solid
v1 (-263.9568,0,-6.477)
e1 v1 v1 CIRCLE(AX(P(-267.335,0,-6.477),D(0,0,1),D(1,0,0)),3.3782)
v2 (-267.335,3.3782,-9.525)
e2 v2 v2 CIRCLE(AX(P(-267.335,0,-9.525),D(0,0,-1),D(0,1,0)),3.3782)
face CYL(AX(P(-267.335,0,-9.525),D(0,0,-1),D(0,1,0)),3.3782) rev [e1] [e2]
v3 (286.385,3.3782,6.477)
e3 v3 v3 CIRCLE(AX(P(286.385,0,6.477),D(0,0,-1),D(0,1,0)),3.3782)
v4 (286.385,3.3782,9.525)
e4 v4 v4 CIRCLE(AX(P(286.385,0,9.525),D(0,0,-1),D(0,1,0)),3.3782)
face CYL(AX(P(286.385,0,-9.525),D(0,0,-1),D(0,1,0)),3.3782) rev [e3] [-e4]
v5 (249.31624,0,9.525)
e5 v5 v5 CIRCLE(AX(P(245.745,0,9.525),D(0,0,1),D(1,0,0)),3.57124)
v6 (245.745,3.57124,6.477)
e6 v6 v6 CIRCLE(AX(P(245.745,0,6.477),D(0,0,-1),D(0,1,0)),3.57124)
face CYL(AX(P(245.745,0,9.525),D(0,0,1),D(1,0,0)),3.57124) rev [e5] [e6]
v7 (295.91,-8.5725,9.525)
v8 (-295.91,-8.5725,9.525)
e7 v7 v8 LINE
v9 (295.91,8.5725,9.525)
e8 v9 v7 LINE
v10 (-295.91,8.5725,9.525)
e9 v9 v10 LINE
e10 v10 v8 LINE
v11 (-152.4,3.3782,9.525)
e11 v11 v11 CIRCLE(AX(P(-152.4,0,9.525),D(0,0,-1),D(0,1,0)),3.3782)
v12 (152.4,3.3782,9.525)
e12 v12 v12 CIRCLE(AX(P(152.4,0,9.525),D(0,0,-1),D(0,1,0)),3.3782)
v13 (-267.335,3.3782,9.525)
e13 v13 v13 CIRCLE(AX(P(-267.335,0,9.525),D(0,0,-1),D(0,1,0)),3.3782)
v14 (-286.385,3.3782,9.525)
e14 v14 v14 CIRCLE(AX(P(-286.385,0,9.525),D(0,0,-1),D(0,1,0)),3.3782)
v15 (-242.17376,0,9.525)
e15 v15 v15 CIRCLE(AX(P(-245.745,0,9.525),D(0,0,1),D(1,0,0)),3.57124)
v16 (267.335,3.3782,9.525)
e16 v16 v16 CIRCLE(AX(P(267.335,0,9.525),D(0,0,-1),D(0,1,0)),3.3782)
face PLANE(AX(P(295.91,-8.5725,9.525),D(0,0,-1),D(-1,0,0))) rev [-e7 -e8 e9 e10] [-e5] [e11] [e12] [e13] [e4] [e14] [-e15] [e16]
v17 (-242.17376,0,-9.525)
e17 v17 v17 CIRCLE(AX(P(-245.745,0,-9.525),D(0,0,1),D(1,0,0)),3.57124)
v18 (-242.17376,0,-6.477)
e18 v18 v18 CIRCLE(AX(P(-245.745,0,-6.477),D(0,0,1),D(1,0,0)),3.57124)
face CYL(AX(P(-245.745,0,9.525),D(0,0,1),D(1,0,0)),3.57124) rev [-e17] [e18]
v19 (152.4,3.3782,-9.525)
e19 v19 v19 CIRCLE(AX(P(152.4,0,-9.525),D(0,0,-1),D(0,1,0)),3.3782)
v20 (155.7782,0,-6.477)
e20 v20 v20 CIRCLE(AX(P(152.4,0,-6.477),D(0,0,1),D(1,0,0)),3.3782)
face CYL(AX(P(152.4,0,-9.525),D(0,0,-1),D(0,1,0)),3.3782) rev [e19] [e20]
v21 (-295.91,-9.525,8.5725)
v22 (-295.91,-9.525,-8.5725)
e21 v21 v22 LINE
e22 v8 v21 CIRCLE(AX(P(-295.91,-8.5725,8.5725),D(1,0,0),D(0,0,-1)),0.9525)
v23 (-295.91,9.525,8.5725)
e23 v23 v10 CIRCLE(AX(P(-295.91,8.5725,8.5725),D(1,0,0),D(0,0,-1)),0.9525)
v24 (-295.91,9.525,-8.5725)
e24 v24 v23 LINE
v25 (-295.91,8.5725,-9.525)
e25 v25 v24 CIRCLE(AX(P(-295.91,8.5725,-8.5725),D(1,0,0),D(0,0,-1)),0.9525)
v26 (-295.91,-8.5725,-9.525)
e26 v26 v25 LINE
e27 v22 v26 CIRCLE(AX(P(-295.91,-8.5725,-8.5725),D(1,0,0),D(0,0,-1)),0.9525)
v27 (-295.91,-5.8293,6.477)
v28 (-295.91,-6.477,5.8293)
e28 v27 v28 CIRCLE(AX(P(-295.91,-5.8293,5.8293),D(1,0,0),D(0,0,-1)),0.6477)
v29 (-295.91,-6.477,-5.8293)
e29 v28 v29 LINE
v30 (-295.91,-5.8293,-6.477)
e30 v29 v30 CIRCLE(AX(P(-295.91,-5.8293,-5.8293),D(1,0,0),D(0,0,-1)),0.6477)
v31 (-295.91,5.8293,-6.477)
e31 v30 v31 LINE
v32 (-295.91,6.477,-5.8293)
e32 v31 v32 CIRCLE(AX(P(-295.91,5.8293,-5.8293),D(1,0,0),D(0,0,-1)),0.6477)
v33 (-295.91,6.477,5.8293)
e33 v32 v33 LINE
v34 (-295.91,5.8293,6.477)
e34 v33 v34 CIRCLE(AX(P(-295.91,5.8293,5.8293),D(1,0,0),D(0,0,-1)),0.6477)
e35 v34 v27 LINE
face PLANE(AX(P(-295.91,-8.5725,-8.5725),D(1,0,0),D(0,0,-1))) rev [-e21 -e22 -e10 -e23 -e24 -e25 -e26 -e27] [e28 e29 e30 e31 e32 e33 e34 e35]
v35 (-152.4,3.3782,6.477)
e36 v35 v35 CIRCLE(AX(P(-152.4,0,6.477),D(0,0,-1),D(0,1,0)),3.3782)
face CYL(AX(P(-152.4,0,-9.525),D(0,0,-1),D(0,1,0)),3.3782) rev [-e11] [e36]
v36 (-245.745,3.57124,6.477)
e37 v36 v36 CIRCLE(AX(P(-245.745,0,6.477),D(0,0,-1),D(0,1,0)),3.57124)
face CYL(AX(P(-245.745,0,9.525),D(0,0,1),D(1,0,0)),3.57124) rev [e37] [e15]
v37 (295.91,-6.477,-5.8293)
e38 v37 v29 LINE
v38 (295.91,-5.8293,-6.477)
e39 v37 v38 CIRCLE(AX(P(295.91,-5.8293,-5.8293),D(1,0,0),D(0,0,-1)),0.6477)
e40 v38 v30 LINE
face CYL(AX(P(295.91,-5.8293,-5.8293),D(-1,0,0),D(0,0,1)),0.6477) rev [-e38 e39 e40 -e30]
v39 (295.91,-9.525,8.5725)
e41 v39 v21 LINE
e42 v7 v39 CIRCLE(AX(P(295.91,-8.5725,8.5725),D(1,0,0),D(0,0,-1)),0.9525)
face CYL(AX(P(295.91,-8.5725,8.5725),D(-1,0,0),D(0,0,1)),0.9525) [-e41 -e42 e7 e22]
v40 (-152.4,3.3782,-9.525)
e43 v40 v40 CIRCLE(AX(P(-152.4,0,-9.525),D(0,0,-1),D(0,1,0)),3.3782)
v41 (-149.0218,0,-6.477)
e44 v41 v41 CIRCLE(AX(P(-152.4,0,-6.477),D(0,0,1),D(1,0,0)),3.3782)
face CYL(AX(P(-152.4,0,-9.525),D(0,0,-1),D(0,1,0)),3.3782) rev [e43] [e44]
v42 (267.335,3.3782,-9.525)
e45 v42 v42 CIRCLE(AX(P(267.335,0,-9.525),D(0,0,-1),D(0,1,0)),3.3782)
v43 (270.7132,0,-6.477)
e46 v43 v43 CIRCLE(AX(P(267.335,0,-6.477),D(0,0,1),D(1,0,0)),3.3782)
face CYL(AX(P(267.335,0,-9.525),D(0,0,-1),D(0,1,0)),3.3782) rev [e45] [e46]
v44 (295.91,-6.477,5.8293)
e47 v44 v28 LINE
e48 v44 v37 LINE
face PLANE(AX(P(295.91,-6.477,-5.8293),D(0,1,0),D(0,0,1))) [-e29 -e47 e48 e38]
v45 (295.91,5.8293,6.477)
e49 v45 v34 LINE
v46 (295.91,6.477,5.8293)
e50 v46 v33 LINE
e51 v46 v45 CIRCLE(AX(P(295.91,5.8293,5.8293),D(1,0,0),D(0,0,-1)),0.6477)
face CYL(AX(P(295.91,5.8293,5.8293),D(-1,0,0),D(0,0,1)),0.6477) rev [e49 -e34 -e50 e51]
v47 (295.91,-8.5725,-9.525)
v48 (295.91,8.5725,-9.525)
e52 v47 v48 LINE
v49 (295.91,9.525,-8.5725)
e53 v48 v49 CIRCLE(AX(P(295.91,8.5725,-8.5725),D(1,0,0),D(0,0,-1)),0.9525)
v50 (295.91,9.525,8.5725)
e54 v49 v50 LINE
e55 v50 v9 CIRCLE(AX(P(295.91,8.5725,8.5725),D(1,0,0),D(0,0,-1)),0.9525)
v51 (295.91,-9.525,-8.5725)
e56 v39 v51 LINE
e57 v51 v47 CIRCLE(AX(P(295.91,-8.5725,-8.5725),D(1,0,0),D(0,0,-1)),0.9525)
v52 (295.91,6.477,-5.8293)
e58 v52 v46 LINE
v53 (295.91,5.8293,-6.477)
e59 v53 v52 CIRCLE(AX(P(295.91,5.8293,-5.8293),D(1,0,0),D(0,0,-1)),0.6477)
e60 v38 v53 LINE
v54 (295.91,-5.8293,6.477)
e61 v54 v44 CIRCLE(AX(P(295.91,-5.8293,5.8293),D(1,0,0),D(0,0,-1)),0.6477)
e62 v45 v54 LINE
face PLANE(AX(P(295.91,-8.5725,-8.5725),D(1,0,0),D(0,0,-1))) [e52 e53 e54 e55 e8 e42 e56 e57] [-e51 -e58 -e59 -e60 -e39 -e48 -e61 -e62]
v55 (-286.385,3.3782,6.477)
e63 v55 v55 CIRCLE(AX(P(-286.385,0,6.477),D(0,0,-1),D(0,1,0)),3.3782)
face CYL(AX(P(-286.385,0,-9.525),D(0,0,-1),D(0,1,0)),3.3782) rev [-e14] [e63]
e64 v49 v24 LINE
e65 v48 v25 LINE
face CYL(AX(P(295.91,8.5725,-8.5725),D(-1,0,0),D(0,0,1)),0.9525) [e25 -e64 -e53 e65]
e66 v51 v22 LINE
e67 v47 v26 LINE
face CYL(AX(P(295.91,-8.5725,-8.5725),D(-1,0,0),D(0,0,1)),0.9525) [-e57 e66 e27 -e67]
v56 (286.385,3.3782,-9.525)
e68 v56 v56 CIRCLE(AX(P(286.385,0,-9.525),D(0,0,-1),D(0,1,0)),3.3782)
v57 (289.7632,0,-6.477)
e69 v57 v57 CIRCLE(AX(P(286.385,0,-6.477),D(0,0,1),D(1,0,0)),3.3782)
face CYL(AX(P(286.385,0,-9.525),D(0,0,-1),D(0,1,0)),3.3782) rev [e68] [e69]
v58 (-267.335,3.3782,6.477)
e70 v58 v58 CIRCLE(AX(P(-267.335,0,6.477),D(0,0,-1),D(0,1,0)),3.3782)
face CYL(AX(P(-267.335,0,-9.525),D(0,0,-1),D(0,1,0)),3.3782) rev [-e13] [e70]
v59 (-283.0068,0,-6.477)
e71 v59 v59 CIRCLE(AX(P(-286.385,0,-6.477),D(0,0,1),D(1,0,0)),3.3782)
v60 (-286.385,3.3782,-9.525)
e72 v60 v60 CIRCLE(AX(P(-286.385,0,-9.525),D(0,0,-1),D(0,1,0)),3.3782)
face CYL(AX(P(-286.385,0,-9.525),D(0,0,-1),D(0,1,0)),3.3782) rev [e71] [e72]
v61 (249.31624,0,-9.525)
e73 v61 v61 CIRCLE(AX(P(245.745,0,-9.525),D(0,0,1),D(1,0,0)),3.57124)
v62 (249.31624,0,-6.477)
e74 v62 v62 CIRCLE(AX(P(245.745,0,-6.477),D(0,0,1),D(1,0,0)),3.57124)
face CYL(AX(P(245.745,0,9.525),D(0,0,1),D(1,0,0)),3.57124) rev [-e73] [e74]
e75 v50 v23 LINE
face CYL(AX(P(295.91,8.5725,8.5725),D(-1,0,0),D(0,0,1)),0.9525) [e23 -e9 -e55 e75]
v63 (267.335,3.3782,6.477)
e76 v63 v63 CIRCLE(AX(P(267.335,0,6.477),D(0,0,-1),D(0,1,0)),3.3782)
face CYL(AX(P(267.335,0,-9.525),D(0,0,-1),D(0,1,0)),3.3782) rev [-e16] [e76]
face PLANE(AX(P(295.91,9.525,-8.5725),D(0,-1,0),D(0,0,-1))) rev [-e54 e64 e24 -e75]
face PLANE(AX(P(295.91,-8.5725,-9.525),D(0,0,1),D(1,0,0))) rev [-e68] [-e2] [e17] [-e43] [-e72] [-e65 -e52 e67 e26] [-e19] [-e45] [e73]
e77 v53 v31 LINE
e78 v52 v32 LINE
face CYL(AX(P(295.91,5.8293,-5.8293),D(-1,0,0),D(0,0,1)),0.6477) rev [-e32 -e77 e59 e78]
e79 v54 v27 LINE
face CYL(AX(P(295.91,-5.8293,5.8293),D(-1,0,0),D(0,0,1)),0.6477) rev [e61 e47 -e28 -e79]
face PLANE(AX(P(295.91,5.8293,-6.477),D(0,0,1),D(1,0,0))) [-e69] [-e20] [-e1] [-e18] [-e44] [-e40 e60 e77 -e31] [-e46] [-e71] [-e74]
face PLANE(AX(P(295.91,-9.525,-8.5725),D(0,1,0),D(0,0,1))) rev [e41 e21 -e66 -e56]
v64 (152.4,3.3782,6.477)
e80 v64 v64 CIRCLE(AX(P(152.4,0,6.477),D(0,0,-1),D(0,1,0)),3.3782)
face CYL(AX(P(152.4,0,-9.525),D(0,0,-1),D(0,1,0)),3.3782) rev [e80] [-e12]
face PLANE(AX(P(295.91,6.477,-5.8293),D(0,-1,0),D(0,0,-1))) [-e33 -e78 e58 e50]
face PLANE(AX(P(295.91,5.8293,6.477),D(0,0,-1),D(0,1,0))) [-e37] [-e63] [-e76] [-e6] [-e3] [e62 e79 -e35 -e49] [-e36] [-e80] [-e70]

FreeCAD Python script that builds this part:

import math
import FreeCAD as App
import Part
import Sketcher

V = App.Vector
Q = App.Units.Quantity


def add_polygon(sketch, points):
    """Adds a closed chain of lines whose ends are joined by coincident constraints."""
    first, n = sketch.GeometryCount, len(points)
    for a, b in zip(points, points[1:] + points[:1]):
        sketch.addGeometry(Part.LineSegment(App.Vector(*a, 0), App.Vector(*b, 0)), False)
    for i in range(n):
        sketch.addConstraint(Sketcher.Constraint("Coincident", first + i, 2, first + (i + 1) % n, 1))

doc = App.newDocument("Part")
body = doc.addObject("PartDesign::Body", "Body")

sketch1 = body.newObject("Sketcher::SketchObject", "Sketch")
sketch1.AttachmentSupport = (doc.getObject("YZ_Plane"), [""])
sketch1.MapMode = "FlatFace"
sketch1.addGeometry([
    Part.LineSegment(V(-8.6, -9.5, 0), V(8.6, -9.5, 0)),
    Part.ArcOfCircle(Part.Circle(V(8.6, -8.6, 0), V(0, 0, 1), 1), math.radians(-90), math.radians(0)),
    Part.LineSegment(V(9.5, -8.6, 0), V(9.5, 8.6, 0)),
    Part.ArcOfCircle(Part.Circle(V(8.6, 8.6, 0), V(0, 0, 1), 1), math.radians(0), math.radians(90)),
    Part.LineSegment(V(8.6, 9.5, 0), V(-8.6, 9.5, 0)),
    Part.ArcOfCircle(Part.Circle(V(-8.6, 8.6, 0), V(0, 0, 1), 1), math.radians(90), math.radians(180)),
    Part.LineSegment(V(-9.5, 8.6, 0), V(-9.5, -8.6, 0)),
    Part.ArcOfCircle(Part.Circle(V(-8.6, -8.6, 0), V(0, 0, 1), 1), math.radians(180), math.radians(270)),
    Part.ArcOfCircle(Part.Circle(V(5.8, -5.8, 0), V(0, 0, 1), 0.6), math.radians(-90), math.radians(0)),
    Part.LineSegment(V(5.8, -6.5, 0), V(-5.8, -6.5, 0)),
    Part.ArcOfCircle(Part.Circle(V(-5.8, -5.8, 0), V(0, 0, 1), 0.6), math.radians(-180), math.radians(-90)),
    Part.LineSegment(V(-6.5, -5.8, 0), V(-6.5, 5.8, 0)),
    Part.ArcOfCircle(Part.Circle(V(-5.8, 5.8, 0), V(0, 0, 1), 0.6), math.radians(90), math.radians(180)),
    Part.LineSegment(V(-5.8, 6.5, 0), V(5.8, 6.5, 0)),
    Part.ArcOfCircle(Part.Circle(V(5.8, 5.8, 0), V(0, 0, 1), 0.6), math.radians(0), math.radians(90)),
    Part.LineSegment(V(6.5, 5.8, 0), V(6.5, -5.8, 0)),
], False)
sketch1.addConstraint([
    Sketcher.Constraint("Tangent", 0, 2, 1, 1),
    Sketcher.Constraint("Tangent", 1, 2, 2, 1),
    Sketcher.Constraint("Tangent", 2, 2, 3, 1),
    Sketcher.Constraint("Tangent", 3, 2, 4, 1),
    Sketcher.Constraint("Tangent", 4, 2, 5, 1),
    Sketcher.Constraint("Tangent", 5, 2, 6, 1),
    Sketcher.Constraint("Tangent", 6, 2, 7, 1),
    Sketcher.Constraint("Tangent", 7, 2, 0, 1),
    Sketcher.Constraint("Tangent", 8, 1, 9, 1),
    Sketcher.Constraint("Tangent", 9, 2, 10, 2),
    Sketcher.Constraint("Tangent", 10, 1, 11, 1),
    Sketcher.Constraint("Tangent", 11, 2, 12, 2),
    Sketcher.Constraint("Tangent", 12, 1, 13, 1),
    Sketcher.Constraint("Tangent", 13, 2, 14, 2),
    Sketcher.Constraint("Tangent", 14, 1, 15, 1),
    Sketcher.Constraint("Tangent", 15, 2, 8, 2),
    Sketcher.Constraint("Horizontal", 0),
    Sketcher.Constraint("Vertical", 2),
    Sketcher.Constraint("Horizontal", 4),
    Sketcher.Constraint("Vertical", 6),
    Sketcher.Constraint("Horizontal", 9),
    Sketcher.Constraint("Vertical", 11),
    Sketcher.Constraint("Horizontal", 13),
    Sketcher.Constraint("Vertical", 15),
    Sketcher.Constraint("Equal", 1, 3),
    Sketcher.Constraint("Equal", 3, 5),
    Sketcher.Constraint("Equal", 5, 7),
    Sketcher.Constraint("Equal", 8, 10),
    Sketcher.Constraint("Equal", 10, 12),
    Sketcher.Constraint("Equal", 12, 14),
    Sketcher.Constraint("Symmetric", 1, 3, 5, 3, -1, 1),
    Sketcher.Constraint("Symmetric", 8, 3, 12, 3, -1, 1),
    Sketcher.Constraint("Equal", 4, 2),
    Sketcher.Constraint("Equal", 13, 11),
    Sketcher.Constraint("Radius", 1, Q("0.0375 in")),
    Sketcher.Constraint("Radius", 8, Q("0.0255 in")),
    Sketcher.Constraint("DistanceX", 0, 1, 0, 2, Q("0.675 in")),
    Sketcher.Constraint("DistanceX", 9, 2, 9, 1, Q("0.459 in")),
])
pad1 = body.newObject("PartDesign::Pad", "Pad")
pad1.Profile = sketch1
pad1.Length = Q("23.3 in")
pad1.Midplane = True

sketch2 = body.newObject("Sketcher::SketchObject", "Sketch001")
sketch2.AttachmentSupport = (doc.getObject("YZ_Plane"), [""])
sketch2.MapMode = "FlatFace"
sketch2.AttachmentOffset = App.Placement(V(0, 0, 12.525 * 25.4), App.Rotation())
add_polygon(sketch2, [(0, 11.6), (0, -9.5), (3.4, -9.5), (3.4, 9.5)])
sketch2.addConstraint([
    Sketcher.Constraint("Vertical", 0),
    Sketcher.Constraint("Horizontal", 1),
    Sketcher.Constraint("Vertical", 2),
    Sketcher.Constraint("PointOnObject", 0, 2, -2),
    Sketcher.Constraint("Angle", 3, Q("149 deg")),
    Sketcher.Constraint("DistanceY", 2, 1, 2, 2, Q("0.75 in")),
    Sketcher.Constraint("DistanceX", 1, 1, 1, 2, Q("0.133 in")),
    Sketcher.Constraint("DistanceY", 0, 2, -1, 1, Q("0.375 in")),
])
groove = body.newObject("PartDesign::Groove", "Groove")
groove.Profile = sketch2
groove.ReferenceAxis = (sketch2, ["V_Axis"])
groove.Angle = 360
doc.recompute()

linearpattern = body.newObject("PartDesign::LinearPattern", "LinearPattern")
linearpattern.Originals = [groove]
linearpattern.Direction = (doc.getObject("X_Axis"), [""])
linearpattern.Mode = "offset"
linearpattern.Offset = Q("1.25 in")
linearpattern.Occurrences = 2
linearpattern.Reversed = True
body.Tip = linearpattern
doc.recompute()

linearpattern2 = body.newObject("PartDesign::LinearPattern", "LinearPattern001")
linearpattern2.Originals = [groove]
linearpattern2.Direction = (doc.getObject("X_Axis"), [""])
linearpattern2.Mode = "offset"
linearpattern2.Offset = Q("2 in")
linearpattern2.Occurrences = 2
linearpattern2.Reversed = True
body.Tip = linearpattern2
doc.recompute()

linearpattern3 = body.newObject("PartDesign::LinearPattern", "LinearPattern002")
linearpattern3.Originals = [groove]
linearpattern3.Direction = (doc.getObject("X_Axis"), [""])
linearpattern3.Mode = "offset"
linearpattern3.Offset = Q("6.525 in")
linearpattern3.Occurrences = 2
linearpattern3.Reversed = True
body.Tip = linearpattern3
doc.recompute()

mirrored = body.newObject("PartDesign::Mirrored", "Mirrored")
mirrored.Originals = [groove]
mirrored.MirrorPlane = (doc.getObject("YZ_Plane"), [""])
body.Tip = mirrored

sketch3 = body.newObject("Sketcher::SketchObject", "Sketch002")
sketch3.AttachmentSupport = (doc.getObject("YZ_Plane"), [""])
sketch3.MapMode = "FlatFace"
sketch3.AttachmentOffset = App.Placement(V(0, 0, -11.275 * 25.4), App.Rotation())
add_polygon(sketch3, [(0, -9.5), (0, 11.6), (3.4, 9.5), (3.4, -9.5)])
sketch3.addConstraint([
    Sketcher.Constraint("Vertical", 0),
    Sketcher.Constraint("Vertical", 2),
    Sketcher.Constraint("Horizontal", 3),
    Sketcher.Constraint("PointOnObject", 0, 2, -2),
    Sketcher.Constraint("Angle", 1, Q("-31 deg")),
    Sketcher.Constraint("DistanceY", 2, 2, 2, 1, Q("0.75 in")),
    Sketcher.Constraint("DistanceX", 3, 2, 3, 1, Q("0.133 in")),
    Sketcher.Constraint("DistanceY", -1, 1, 1, 2, Q("0.375 in")),
])
groove2 = body.newObject("PartDesign::Groove", "Groove001")
groove2.Profile = sketch3
groove2.ReferenceAxis = (sketch3, ["V_Axis"])
groove2.Angle = 360

sketch4 = body.newObject("Sketcher::SketchObject", "Sketch003")
sketch4.AttachmentSupport = (doc.getObject("YZ_Plane"), [""])
sketch4.MapMode = "FlatFace"
sketch4.AttachmentOffset = App.Placement(V(0, 0, -10.525 * 25.4), App.Rotation())
add_polygon(sketch4, [(0, -9.5), (0, 11.6), (3.4, 9.5), (3.4, -9.5)])
sketch4.addConstraint([
    Sketcher.Constraint("Vertical", 0),
    Sketcher.Constraint("Vertical", 2),
    Sketcher.Constraint("Horizontal", 3),
    Sketcher.Constraint("PointOnObject", 0, 2, -2),
    Sketcher.Constraint("Angle", 1, Q("-31 deg")),
    Sketcher.Constraint("DistanceY", 2, 2, 2, 1, Q("0.75 in")),
    Sketcher.Constraint("DistanceX", 3, 2, 3, 1, Q("0.133 in")),
    Sketcher.Constraint("DistanceY", -1, 1, 1, 2, Q("0.375 in")),
])
groove3 = body.newObject("PartDesign::Groove", "Groove002")
groove3.Profile = sketch4
groove3.ReferenceAxis = (sketch4, ["V_Axis"])
groove3.Angle = 360

sketch5 = body.newObject("Sketcher::SketchObject", "Sketch004")
sketch5.AttachmentSupport = (doc.getObject("YZ_Plane"), [""])
sketch5.MapMode = "FlatFace"
sketch5.AttachmentOffset = App.Placement(V(0, 0, -6 * 25.4), App.Rotation())
add_polygon(sketch5, [(0, -9.5), (0, 11.6), (3.4, 9.5), (3.4, -9.5)])
sketch5.addConstraint([
    Sketcher.Constraint("Vertical", 0),
    Sketcher.Constraint("Vertical", 2),
    Sketcher.Constraint("Horizontal", 3),
    Sketcher.Constraint("PointOnObject", 0, 2, -2),
    Sketcher.Constraint("Angle", 1, Q("-31 deg")),
    Sketcher.Constraint("DistanceY", 2, 2, 2, 1, Q("0.75 in")),
    Sketcher.Constraint("DistanceX", 3, 2, 3, 1, Q("0.133 in")),
    Sketcher.Constraint("DistanceY", -1, 1, 1, 2, Q("0.375 in")),
])
groove4 = body.newObject("PartDesign::Groove", "Groove003")
groove4.Profile = sketch5
groove4.ReferenceAxis = (sketch5, ["V_Axis"])
groove4.Angle = 360

sketch6 = body.newObject("Sketcher::SketchObject", "Sketch005")
sketch6.AttachmentSupport = (doc.getObject("XY_Plane"), [""])
sketch6.MapMode = "FlatFace"
sketch6.AttachmentOffset = App.Placement(V(0, 0, 0.375 * 25.4), App.Rotation())
sketch6.addGeometry([
    Part.Circle(V(245.7, 0, 0), V(0, 0, 1), 3.6),
    Part.Circle(V(-245.7, 0, 0), V(0, 0, 1), 3.6),
], False)
sketch6.addConstraint([
    Sketcher.Constraint("Equal", 0, 1),
    Sketcher.Constraint("Symmetric", 0, 3, 1, 3, -1, 1),
    Sketcher.Constraint("PointOnObject", 0, 3, -1),
    Sketcher.Constraint("Diameter", 0, Q("0.2812 in")),
    Sketcher.Constraint("DistanceX", 1, 3, 0, 3, Q("19.35 in")),
])
doc.recompute()
hole = body.newObject("PartDesign::Hole", "Hole")
hole.Profile = sketch6
hole.ThreadType = "None"
hole.Diameter = Q("0.2812 in")
hole.DepthType = "ThroughAll"

doc.recompute()
